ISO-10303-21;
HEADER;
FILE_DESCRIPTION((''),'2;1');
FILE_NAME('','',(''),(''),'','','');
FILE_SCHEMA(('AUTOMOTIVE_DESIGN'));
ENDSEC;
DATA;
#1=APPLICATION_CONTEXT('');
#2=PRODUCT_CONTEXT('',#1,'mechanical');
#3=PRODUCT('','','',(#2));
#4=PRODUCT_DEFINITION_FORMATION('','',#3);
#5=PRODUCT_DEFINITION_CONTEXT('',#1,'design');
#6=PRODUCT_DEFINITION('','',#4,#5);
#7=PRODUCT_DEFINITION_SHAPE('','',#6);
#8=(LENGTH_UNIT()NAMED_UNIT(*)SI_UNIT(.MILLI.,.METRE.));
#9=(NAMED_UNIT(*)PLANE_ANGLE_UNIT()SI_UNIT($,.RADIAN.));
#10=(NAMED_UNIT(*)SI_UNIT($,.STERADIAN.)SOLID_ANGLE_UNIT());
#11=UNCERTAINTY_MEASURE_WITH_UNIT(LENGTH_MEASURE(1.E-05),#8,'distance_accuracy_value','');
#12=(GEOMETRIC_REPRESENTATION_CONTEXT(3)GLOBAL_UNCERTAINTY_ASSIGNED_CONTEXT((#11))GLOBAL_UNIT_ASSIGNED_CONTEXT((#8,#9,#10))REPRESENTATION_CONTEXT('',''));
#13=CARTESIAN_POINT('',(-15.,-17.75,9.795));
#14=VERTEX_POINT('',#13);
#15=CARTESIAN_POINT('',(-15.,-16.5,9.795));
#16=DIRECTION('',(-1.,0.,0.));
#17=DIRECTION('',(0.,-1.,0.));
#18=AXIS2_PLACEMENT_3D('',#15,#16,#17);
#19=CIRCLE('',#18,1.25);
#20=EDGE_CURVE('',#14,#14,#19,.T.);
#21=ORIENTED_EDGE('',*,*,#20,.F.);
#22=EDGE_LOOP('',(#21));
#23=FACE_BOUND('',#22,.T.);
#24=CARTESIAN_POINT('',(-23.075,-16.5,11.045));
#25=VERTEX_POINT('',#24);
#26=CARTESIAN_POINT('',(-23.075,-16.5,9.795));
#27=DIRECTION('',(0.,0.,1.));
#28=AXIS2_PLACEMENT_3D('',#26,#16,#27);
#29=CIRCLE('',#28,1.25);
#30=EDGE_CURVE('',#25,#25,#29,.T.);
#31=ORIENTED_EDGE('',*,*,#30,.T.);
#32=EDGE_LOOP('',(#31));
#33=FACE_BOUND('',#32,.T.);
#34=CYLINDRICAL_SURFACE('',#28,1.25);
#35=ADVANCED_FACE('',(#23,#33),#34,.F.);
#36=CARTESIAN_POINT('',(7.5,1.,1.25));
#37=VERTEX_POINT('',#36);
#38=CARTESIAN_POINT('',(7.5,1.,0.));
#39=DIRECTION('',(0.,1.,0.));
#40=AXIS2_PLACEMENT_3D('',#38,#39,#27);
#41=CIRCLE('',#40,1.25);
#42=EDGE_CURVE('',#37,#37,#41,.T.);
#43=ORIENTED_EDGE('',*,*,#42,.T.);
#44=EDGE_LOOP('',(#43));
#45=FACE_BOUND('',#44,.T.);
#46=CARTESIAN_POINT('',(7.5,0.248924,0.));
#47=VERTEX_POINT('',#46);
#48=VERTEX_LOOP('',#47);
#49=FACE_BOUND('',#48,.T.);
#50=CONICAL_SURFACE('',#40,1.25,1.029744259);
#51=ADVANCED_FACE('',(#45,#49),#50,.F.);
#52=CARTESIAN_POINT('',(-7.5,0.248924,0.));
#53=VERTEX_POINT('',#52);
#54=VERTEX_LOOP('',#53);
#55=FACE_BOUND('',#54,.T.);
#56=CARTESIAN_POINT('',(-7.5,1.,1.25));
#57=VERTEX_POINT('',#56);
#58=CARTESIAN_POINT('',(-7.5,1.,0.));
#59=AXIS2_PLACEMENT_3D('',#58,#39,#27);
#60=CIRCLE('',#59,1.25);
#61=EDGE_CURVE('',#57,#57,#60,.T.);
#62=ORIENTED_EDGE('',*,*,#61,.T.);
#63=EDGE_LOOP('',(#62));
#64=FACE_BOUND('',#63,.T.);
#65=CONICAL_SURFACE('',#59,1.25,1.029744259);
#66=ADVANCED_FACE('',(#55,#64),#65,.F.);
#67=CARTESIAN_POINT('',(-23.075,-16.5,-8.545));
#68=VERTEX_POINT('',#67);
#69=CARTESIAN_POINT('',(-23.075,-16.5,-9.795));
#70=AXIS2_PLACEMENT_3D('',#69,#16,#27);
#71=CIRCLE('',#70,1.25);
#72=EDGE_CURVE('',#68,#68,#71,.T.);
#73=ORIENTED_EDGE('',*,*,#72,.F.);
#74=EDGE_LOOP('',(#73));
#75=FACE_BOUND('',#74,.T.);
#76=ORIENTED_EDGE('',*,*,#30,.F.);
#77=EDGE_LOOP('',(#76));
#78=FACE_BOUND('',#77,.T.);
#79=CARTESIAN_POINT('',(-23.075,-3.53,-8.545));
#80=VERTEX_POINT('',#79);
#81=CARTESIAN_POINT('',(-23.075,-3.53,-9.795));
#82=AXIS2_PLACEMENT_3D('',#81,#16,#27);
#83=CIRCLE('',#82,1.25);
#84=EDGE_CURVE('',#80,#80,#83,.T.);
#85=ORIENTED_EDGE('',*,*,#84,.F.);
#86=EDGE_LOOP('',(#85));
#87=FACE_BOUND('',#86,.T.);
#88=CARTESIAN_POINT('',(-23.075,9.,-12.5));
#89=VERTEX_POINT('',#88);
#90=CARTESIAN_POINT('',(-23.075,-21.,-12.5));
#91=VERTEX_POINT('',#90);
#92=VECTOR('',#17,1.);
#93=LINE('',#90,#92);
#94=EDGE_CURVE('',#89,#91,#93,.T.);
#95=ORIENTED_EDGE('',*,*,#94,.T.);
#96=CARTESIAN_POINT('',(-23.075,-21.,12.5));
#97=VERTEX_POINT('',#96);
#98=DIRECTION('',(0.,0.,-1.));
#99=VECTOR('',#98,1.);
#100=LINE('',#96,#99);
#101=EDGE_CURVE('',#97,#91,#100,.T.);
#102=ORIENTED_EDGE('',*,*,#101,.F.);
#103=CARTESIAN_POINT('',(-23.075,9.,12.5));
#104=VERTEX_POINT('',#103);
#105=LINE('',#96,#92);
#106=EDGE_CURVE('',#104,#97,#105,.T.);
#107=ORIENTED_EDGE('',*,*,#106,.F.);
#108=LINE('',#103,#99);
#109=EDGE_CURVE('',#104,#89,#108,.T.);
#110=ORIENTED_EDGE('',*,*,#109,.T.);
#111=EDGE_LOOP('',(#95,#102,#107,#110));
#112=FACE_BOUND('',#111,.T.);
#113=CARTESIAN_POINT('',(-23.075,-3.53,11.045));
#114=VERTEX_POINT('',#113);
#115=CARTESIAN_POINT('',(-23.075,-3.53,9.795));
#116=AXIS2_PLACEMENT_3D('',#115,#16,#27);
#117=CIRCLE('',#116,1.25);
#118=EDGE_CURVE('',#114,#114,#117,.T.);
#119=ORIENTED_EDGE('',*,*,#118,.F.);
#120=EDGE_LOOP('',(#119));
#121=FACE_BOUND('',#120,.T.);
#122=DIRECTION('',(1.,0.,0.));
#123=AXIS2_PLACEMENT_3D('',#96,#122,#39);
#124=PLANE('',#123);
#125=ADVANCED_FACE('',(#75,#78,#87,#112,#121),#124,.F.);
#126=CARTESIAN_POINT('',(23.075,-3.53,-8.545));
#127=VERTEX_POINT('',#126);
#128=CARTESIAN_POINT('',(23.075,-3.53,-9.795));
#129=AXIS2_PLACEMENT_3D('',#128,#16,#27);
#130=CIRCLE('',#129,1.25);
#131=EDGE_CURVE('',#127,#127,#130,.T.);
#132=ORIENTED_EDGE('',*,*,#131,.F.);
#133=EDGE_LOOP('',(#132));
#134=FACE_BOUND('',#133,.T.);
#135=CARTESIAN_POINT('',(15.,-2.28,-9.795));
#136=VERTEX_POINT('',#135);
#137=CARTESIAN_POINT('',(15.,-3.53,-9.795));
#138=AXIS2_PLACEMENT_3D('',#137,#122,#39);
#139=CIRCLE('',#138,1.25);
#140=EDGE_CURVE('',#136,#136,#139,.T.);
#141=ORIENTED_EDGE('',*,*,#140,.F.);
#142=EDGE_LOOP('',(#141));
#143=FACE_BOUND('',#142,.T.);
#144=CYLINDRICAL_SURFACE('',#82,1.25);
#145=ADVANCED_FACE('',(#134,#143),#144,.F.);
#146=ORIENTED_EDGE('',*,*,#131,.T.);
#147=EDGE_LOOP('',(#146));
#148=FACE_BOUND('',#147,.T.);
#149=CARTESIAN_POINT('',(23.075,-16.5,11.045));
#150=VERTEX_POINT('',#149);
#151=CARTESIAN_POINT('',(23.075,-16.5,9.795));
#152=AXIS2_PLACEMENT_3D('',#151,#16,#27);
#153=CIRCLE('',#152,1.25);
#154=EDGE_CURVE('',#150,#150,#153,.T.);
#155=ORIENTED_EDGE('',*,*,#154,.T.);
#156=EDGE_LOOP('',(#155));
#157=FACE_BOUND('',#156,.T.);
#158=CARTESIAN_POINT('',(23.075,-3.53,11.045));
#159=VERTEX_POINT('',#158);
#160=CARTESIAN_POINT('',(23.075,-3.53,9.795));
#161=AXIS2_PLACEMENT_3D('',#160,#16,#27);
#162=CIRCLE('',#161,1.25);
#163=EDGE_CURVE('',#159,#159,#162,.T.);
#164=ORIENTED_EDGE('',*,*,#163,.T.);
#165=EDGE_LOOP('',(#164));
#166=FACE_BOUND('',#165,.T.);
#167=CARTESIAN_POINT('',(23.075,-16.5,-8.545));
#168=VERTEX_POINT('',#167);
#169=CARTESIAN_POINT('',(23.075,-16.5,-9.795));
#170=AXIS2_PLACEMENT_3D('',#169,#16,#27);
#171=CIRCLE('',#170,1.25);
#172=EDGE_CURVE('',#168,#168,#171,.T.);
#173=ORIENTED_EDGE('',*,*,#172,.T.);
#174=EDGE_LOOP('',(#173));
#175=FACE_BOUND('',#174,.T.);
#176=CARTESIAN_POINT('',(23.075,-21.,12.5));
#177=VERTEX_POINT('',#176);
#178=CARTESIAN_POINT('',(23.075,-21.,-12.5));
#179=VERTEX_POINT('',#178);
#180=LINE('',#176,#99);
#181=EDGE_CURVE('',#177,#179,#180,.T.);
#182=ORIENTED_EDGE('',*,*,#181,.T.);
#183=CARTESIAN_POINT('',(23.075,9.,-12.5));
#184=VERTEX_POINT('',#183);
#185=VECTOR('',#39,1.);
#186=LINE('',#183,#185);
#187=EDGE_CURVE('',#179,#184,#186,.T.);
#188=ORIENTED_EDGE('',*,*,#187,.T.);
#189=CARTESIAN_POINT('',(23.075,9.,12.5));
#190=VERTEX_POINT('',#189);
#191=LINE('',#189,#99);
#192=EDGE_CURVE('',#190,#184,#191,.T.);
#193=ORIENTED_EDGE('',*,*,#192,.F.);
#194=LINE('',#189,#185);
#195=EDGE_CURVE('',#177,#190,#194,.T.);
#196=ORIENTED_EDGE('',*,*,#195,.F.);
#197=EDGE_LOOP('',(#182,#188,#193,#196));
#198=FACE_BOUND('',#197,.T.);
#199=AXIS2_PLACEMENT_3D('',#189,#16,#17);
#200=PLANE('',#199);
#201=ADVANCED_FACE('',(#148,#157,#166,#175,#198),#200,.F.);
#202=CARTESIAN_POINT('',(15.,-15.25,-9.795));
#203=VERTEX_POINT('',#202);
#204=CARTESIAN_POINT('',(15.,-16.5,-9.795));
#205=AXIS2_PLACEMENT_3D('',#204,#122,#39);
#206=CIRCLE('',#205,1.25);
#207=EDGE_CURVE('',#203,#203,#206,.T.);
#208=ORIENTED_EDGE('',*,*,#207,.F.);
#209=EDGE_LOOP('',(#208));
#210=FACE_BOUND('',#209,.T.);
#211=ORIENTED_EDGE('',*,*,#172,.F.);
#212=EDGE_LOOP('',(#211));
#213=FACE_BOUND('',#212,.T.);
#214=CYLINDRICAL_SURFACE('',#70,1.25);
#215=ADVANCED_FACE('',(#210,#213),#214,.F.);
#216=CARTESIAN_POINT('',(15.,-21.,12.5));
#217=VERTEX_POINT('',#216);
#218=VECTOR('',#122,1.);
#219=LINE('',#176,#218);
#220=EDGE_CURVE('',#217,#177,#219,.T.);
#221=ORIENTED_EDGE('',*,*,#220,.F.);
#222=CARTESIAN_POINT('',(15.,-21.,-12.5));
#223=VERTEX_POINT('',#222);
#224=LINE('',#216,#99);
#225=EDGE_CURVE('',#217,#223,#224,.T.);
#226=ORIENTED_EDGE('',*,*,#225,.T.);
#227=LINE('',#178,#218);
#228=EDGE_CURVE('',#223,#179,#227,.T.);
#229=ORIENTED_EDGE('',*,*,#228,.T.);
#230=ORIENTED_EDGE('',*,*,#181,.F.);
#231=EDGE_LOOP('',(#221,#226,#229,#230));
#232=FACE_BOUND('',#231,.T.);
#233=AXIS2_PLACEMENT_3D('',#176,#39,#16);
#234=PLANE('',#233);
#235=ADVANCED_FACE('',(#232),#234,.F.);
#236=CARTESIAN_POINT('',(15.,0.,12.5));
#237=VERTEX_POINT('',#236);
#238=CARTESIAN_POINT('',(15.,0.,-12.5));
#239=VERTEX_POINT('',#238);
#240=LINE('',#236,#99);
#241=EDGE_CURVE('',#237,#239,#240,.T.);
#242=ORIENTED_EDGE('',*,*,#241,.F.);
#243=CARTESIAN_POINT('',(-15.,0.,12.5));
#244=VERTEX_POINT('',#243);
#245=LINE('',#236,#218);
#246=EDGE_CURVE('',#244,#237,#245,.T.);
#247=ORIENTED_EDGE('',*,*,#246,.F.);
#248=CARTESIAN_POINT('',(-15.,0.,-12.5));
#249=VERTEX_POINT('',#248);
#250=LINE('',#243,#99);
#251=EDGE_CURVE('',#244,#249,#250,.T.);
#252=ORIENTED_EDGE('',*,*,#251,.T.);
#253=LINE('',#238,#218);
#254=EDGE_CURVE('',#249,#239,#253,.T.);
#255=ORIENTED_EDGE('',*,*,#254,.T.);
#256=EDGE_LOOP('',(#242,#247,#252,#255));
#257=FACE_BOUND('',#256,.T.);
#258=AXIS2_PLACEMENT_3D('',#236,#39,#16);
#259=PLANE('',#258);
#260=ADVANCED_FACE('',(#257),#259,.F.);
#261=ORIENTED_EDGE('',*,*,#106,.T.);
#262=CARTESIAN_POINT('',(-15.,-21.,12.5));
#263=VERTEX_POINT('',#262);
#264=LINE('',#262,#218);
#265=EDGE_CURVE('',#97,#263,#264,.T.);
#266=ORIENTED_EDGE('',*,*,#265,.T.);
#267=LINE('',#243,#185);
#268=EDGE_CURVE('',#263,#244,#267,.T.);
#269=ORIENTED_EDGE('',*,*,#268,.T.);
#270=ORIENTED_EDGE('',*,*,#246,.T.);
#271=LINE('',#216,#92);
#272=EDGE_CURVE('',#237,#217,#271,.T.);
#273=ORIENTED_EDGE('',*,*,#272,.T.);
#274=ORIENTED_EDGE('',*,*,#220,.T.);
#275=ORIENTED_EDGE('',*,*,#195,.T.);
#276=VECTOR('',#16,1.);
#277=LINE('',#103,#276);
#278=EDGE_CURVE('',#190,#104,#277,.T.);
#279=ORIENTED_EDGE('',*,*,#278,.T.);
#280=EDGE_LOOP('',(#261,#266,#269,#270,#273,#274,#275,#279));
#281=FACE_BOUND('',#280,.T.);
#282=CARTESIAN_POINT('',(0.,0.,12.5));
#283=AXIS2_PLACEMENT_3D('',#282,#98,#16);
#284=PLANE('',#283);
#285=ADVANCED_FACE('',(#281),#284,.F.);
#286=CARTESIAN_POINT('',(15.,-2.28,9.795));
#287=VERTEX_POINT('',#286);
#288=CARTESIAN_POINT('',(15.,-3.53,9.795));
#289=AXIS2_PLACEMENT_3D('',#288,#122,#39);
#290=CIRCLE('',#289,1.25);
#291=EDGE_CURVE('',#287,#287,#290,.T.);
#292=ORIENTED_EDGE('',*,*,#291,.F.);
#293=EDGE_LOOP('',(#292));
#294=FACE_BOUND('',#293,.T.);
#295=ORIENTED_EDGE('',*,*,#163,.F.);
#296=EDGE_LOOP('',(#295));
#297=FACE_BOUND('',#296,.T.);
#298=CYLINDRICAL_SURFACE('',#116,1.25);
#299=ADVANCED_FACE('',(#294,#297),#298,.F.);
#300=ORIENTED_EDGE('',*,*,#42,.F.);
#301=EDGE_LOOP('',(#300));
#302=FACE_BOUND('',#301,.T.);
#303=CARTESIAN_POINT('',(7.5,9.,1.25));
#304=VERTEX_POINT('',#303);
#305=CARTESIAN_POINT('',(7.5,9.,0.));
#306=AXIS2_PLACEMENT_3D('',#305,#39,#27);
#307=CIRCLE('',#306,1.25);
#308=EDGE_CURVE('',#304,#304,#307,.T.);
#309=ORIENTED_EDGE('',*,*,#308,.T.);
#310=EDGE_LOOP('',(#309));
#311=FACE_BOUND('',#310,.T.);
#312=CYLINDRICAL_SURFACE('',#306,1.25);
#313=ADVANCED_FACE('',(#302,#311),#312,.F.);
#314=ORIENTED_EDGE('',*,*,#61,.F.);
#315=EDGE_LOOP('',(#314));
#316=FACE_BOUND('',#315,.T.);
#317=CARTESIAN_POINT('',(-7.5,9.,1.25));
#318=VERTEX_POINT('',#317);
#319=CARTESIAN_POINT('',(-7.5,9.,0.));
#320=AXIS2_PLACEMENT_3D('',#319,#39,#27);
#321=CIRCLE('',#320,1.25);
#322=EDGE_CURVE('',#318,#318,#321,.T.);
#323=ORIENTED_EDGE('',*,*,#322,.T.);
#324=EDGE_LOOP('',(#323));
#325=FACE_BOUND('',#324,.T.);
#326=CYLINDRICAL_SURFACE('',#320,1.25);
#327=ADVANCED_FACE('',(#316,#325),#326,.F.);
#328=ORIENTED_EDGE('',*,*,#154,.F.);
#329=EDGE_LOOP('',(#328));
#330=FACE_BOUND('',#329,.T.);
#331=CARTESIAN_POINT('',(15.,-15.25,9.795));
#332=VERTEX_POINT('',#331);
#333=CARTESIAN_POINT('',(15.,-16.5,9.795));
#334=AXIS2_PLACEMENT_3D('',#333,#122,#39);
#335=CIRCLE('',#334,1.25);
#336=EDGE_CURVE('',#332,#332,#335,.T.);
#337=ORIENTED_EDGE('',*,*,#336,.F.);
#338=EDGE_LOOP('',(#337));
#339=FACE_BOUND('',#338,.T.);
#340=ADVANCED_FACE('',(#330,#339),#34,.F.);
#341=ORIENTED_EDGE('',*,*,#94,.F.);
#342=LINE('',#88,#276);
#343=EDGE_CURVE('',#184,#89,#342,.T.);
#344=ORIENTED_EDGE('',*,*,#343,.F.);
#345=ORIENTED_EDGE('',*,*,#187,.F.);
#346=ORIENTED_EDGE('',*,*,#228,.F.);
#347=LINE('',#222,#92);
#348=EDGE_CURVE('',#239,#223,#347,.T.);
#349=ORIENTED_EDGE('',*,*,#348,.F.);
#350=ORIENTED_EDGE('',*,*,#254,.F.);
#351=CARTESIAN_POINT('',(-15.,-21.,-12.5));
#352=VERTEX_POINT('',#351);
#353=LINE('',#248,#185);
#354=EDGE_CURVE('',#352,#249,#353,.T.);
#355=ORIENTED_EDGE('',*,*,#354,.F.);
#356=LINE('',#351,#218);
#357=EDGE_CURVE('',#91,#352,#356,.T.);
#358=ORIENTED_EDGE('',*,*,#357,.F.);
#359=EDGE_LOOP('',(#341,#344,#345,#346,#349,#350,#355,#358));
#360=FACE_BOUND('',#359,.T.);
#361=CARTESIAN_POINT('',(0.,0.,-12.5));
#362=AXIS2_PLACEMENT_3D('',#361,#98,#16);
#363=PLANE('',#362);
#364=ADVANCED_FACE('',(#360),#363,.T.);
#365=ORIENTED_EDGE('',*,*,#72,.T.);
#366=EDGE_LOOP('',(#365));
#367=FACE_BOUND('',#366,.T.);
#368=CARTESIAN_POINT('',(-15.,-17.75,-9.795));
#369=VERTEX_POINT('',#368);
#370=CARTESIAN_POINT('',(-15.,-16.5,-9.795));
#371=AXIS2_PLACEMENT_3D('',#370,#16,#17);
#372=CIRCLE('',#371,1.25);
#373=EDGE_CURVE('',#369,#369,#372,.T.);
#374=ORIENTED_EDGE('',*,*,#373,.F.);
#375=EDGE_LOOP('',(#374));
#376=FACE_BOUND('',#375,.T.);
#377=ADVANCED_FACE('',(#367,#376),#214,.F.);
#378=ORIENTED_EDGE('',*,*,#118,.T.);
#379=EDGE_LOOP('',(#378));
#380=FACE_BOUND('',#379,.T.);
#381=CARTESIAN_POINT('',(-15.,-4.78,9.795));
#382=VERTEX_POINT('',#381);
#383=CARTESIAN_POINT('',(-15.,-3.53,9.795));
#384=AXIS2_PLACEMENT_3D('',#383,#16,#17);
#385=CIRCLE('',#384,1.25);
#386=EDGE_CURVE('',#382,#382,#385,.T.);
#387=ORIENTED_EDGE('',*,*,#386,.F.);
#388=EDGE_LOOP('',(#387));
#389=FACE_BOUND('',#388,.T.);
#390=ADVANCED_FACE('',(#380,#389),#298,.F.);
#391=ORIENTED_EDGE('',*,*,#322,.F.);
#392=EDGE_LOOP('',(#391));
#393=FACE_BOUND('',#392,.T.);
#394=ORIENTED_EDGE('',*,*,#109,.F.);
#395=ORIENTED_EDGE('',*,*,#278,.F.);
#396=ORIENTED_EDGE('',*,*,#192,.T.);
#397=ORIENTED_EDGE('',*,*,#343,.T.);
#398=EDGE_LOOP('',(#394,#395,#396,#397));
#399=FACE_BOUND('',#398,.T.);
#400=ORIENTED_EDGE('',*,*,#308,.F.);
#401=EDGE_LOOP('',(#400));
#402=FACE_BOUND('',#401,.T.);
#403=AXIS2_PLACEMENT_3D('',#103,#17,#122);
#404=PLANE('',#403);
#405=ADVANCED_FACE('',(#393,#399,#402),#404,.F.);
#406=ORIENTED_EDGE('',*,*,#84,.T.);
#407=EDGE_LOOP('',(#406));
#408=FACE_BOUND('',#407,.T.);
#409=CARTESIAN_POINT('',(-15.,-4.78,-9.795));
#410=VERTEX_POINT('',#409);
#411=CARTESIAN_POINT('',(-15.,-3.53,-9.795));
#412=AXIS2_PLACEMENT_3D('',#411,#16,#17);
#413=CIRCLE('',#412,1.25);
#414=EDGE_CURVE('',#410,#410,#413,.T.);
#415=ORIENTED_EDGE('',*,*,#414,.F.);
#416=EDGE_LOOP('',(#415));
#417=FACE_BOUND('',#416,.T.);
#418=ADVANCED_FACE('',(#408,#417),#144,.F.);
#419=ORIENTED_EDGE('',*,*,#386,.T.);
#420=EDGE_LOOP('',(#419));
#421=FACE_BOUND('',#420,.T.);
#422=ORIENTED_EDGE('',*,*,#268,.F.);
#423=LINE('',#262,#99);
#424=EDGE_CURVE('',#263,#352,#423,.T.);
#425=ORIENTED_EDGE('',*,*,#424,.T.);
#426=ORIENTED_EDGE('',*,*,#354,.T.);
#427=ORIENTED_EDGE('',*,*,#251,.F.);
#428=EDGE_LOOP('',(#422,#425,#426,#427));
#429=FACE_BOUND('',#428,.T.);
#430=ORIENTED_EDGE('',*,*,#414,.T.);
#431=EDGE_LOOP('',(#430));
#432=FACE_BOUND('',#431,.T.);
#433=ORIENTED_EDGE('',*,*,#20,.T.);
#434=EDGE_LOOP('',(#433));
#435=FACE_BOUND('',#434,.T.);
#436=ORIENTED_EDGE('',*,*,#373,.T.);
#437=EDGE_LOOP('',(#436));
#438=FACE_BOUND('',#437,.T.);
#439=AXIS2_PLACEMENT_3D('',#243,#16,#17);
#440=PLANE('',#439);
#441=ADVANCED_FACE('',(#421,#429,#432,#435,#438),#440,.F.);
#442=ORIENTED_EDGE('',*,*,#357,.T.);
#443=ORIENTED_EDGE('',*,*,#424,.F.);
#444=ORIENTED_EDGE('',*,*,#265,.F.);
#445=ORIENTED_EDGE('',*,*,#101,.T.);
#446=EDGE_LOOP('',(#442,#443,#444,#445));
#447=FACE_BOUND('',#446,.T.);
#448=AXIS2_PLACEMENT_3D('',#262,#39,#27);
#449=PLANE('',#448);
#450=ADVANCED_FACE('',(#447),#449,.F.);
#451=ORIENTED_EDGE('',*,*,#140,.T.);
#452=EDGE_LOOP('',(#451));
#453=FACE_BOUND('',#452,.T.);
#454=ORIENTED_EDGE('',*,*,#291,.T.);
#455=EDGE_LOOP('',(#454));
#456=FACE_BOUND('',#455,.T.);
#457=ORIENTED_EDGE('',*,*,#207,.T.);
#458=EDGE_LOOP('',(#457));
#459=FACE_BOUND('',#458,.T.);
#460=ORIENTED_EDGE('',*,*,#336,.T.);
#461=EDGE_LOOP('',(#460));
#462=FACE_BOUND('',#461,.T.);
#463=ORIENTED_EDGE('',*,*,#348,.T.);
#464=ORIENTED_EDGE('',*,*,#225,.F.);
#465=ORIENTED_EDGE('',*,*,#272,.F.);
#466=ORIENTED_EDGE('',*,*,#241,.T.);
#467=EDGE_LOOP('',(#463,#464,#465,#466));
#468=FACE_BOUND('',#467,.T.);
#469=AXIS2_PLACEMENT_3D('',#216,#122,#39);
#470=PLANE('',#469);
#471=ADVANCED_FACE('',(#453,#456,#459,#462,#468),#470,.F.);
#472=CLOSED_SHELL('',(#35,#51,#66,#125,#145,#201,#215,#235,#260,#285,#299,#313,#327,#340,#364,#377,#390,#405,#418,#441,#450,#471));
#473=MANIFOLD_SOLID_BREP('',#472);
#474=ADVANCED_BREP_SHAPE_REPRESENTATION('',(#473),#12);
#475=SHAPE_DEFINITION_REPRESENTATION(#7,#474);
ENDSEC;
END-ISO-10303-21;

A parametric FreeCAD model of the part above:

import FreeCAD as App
import Part
import Sketcher
Q = App.Units.Quantity


def add_polygon(sketch, points):
    """Adds a closed chain of lines whose ends are joined by coincident constraints."""
    first, n = sketch.GeometryCount, len(points)
    for a, b in zip(points, points[1:] + points[:1]):
        sketch.addGeometry(Part.LineSegment(App.Vector(*a, 0), App.Vector(*b, 0)), False)
    for i in range(n):
        sketch.addConstraint(Sketcher.Constraint("Coincident", first + i, 2, first + (i + 1) % n, 1))

doc = App.newDocument("Part")
body = doc.addObject("PartDesign::Body", "Body")

# Sketch on XY plane
sketch1 = body.newObject("Sketcher::SketchObject", "Sketch")
sketch1.AttachmentSupport = (doc.getObject("XY_Plane"), [""])
sketch1.MapMode = "FlatFace"
add_polygon(sketch1, [(-23, 9), (-23, -21), (-15, -21), (-15, 0), (15, 0), (15, -21), (23, -21), (23, 9)])  # lines 0-7
sketch1.addConstraint([
    Sketcher.Constraint("Vertical", 0),
    Sketcher.Constraint("Horizontal", 1),
    Sketcher.Constraint("Vertical", 2),
    Sketcher.Constraint("Horizontal", 3),
    Sketcher.Constraint("Vertical", 4),
    Sketcher.Constraint("Horizontal", 5),
    Sketcher.Constraint("Vertical", 6),
    Sketcher.Constraint("Horizontal", 7),
    Sketcher.Constraint("Symmetric", 2, 2, 3, 2, -1, 1),
    Sketcher.Constraint("Symmetric", 0, 2, 5, 2, -2),
    Sketcher.Constraint("Equal", 3, 0),
    Sketcher.Constraint("DistanceX", 3, 1, 3, 2, Q("30 mm")),
    Sketcher.Constraint("DistanceY", 2, 1, 2, 2, Q("21 mm")),
    Sketcher.Constraint("DistanceX", 7, 2, 7, 1, Q("46.15 mm")),
])
pad1 = body.newObject("PartDesign::Pad", "Pad")
pad1.Profile = sketch1
pad1.Length = 25
pad1.Midplane = True

# Sketch on XZ plane
sketch2 = body.newObject("Sketcher::SketchObject", "Sketch001")
sketch2.AttachmentSupport = (doc.getObject("XZ_Plane"), [""])
sketch2.MapMode = "FlatFace"
sketch2.AttachmentOffset = App.Placement(App.Vector(0, 0, -9), App.Rotation())
sketch2.addGeometry([
    Part.Circle(App.Vector(-7.5, 0, 0), App.Vector(0, 0, 1), 1.2),
    Part.Circle(App.Vector(7.5, 0, 0), App.Vector(0, 0, 1), 1.2),
], False)
sketch2.addConstraint([
    Sketcher.Constraint("Equal", 0, 1),
    Sketcher.Constraint("Symmetric", 0, 3, 1, 3, -1, 1),
    Sketcher.Constraint("PointOnObject", 0, 3, -1),
    Sketcher.Constraint("Diameter", 0, Q("2.5 mm")),
    Sketcher.Constraint("DistanceX", 0, 3, 1, 3, Q("15 mm")),
])
doc.recompute()
hole = body.newObject("PartDesign::Hole", "Hole")
hole.Profile = sketch2
hole.ThreadType = "None"
hole.Diameter = 2.5
hole.DepthType = "Dimension"
hole.Depth = 8
hole.DrillPoint = "Angled"
hole.DrillPointAngle = 118
hole.Reversed = True

# Sketch on YZ plane
sketch3 = body.newObject("Sketcher::SketchObject", "Sketch002")
sketch3.AttachmentSupport = (doc.getObject("YZ_Plane"), [""])
sketch3.MapMode = "FlatFace"
sketch3.AttachmentOffset = App.Placement(App.Vector(0, 0, -23.075), App.Rotation())
sketch3.addGeometry([
    Part.Circle(App.Vector(-3.5, -9.8, 0), App.Vector(0, 0, 1), 1.2),
    Part.Circle(App.Vector(-16.5, 9.8, 0), App.Vector(0, 0, 1), 1.2),
    Part.Circle(App.Vector(-16.5, -9.8, 0), App.Vector(0, 0, 1), 1.2),
    Part.Circle(App.Vector(-3.5, 9.8, 0), App.Vector(0, 0, 1), 1.2),
], False)
sketch3.addConstraint([
    Sketcher.Constraint("Equal", 0, 1),
    Sketcher.Constraint("Equal", 1, 2),
    Sketcher.Constraint("Equal", 2, 3),
    Sketcher.Constraint("Symmetric", 1, 3, 2, 3, -1),
    Sketcher.Constraint("Symmetric", 0, 3, 3, 3, -1),
    Sketcher.Constraint("Horizontal", 0, 3, 2, 3),
    Sketcher.Constraint("Diameter", 0, Q("2.5 mm")),
    Sketcher.Constraint("DistanceX", 1, 3, -1, 1, Q("16.5 mm")),
    Sketcher.Constraint("DistanceX", 0, 3, -1, 1, Q("3.53 mm")),
    Sketcher.Constraint("DistanceY", 0, 3, 1, 3, Q("19.59 mm")),
])
doc.recompute()
hole2 = body.newObject("PartDesign::Hole", "Hole001")
hole2.Profile = sketch3
hole2.ThreadType = "None"
hole2.Diameter = 2.5
hole2.DepthType = "ThroughAll"
hole2.Reversed = True

doc.recompute()
